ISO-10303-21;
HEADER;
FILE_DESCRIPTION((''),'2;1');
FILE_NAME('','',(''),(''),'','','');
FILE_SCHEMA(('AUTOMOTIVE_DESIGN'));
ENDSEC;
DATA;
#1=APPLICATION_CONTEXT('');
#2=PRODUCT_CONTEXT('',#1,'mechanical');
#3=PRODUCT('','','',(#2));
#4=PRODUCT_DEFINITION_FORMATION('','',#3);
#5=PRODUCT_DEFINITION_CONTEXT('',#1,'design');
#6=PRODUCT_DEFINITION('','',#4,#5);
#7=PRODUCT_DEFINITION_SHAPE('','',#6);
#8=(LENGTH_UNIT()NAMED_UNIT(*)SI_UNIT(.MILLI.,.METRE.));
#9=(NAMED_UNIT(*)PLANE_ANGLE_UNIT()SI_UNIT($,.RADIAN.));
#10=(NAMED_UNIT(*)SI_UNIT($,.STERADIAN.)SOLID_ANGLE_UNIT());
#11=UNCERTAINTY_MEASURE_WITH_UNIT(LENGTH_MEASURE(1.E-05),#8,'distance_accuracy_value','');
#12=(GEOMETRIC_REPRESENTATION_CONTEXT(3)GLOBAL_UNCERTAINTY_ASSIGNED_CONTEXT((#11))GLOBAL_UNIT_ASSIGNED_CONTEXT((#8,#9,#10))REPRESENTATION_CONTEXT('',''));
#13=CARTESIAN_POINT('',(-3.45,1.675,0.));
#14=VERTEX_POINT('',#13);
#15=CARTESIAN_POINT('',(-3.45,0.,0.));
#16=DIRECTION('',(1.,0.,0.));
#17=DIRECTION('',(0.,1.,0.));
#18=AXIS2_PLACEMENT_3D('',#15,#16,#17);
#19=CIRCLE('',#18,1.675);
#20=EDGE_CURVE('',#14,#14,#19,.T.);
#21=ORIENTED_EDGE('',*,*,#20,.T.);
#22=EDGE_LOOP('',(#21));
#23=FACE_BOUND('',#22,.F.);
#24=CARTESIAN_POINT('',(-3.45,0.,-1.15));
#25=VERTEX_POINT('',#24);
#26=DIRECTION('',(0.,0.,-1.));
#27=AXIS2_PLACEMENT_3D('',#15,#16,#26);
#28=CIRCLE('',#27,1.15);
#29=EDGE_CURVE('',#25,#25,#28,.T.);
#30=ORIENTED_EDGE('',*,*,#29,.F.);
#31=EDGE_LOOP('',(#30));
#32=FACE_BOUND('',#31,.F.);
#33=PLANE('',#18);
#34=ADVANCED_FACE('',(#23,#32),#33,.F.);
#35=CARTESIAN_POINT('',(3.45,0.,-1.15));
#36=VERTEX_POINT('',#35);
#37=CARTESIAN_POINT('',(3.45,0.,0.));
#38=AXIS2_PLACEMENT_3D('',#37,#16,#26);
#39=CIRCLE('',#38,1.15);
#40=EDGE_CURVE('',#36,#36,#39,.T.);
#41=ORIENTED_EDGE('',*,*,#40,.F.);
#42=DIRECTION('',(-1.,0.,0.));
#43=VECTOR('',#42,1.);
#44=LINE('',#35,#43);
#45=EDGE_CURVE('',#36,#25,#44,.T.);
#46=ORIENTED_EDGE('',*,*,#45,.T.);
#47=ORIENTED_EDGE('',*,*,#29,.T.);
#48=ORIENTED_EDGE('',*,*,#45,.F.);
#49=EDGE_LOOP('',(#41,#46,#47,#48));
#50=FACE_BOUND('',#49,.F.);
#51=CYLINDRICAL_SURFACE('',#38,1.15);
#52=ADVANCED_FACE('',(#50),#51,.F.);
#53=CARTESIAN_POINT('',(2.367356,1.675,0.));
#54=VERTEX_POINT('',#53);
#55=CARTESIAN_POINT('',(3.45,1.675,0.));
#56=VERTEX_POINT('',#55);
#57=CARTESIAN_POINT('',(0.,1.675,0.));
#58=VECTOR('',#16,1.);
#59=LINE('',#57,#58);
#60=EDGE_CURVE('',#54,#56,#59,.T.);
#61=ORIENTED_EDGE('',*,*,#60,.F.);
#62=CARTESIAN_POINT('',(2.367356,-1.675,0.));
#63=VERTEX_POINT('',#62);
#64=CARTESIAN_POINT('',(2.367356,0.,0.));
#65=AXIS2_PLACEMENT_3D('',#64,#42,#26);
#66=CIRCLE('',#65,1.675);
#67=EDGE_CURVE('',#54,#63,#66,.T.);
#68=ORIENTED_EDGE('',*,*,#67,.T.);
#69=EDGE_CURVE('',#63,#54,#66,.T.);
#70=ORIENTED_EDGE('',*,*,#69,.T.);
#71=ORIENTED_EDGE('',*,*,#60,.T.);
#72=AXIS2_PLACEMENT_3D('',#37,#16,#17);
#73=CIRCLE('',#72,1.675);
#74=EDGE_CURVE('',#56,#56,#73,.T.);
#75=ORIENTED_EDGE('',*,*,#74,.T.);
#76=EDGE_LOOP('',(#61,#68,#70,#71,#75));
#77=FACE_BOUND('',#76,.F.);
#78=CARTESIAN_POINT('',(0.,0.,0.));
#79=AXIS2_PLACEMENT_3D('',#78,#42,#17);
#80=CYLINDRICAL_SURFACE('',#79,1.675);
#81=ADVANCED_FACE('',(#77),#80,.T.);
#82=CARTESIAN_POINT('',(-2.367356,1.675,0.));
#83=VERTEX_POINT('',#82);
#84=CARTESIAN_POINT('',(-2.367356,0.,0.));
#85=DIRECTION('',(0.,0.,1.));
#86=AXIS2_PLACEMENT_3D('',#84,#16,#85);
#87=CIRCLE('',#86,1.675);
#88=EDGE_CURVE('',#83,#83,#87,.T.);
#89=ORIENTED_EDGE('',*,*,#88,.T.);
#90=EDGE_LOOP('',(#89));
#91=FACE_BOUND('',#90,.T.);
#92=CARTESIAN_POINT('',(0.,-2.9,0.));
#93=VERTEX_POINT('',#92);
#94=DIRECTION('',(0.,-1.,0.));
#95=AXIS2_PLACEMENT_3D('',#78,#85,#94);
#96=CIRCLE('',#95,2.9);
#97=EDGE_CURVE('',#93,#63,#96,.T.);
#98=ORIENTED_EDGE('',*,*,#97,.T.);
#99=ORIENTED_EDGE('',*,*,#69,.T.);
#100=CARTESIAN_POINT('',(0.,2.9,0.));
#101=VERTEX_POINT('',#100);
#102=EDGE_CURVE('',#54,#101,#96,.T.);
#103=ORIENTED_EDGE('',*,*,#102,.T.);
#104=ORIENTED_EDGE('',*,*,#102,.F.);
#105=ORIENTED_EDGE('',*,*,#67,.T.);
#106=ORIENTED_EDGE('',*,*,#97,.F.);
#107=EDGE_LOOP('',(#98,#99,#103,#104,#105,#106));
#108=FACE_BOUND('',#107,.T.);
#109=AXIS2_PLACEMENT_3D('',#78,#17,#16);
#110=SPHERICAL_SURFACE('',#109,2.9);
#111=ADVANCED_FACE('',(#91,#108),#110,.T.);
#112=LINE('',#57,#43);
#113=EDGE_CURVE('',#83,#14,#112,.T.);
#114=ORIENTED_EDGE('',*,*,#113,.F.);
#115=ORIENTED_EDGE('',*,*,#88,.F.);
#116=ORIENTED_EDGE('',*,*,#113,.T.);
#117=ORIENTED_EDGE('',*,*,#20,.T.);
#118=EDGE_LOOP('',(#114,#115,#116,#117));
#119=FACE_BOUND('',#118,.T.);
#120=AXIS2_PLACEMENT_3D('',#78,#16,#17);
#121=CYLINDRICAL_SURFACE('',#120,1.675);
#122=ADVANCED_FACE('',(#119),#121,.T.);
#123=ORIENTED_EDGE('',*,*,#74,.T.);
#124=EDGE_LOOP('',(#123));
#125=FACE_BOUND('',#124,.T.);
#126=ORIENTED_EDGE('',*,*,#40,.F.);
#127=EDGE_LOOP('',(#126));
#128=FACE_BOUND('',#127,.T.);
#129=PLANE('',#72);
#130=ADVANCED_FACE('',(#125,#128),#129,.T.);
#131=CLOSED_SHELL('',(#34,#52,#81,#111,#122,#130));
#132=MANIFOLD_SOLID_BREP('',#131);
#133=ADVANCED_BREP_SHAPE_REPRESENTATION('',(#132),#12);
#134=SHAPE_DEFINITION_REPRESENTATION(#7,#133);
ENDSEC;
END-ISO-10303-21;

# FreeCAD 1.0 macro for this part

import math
import FreeCAD as App
import Part
import Sketcher
from FreeCAD import Vector
Q = App.Units.Quantity

doc = App.newDocument("Part")
body = doc.addObject("PartDesign::Body", "Body")

# Sketch on XY plane
sketch1 = body.newObject("Sketcher::SketchObject", "Sketch")
sketch1.AttachmentSupport = (doc.getObject("XY_Plane"), [""])
sketch1.MapMode = "FlatFace"
sketch1.addGeometry(Part.LineSegment(Vector(0, 2.9, 0), Vector(0, -2.9, 0)), False)
sketch1.addGeometry(Part.ArcOfCircle(Part.Circle(Vector(0, 0, 0), Vector(0, 0, 1), 2.9), math.radians(-90), math.radians(90)), False)
sketch1.addConstraint(Sketcher.Constraint("Coincident", 0, 1, 1, 2))
sketch1.addConstraint(Sketcher.Constraint("Coincident", 1, 1, 0, 2))
sketch1.addConstraint(Sketcher.Constraint("Vertical", 0))
sketch1.addConstraint(Sketcher.Constraint("Coincident", 1, 3, -1, 1))
sketch1.addConstraint(Sketcher.Constraint("PointOnObject", 0, 1, -2))
sketch1.addConstraint(Sketcher.Constraint("Radius", 1, Q("2.9 mm")))
revolution = body.newObject("PartDesign::Revolution", "Revolution")
revolution.Profile = sketch1
revolution.ReferenceAxis = (sketch1, ["V_Axis"])
revolution.Angle = 360

# Sketch on YZ plane
sketch2 = body.newObject("Sketcher::SketchObject", "Sketch001")
sketch2.AttachmentSupport = (doc.getObject("YZ_Plane"), [""])
sketch2.MapMode = "FlatFace"
sketch2.addGeometry(Part.Circle(Vector(0, 0, 0), Vector(0, 0, 1), 1.675), False)
sketch2.addConstraint(Sketcher.Constraint("Coincident", 0, 3, -1, 1))
sketch2.addConstraint(Sketcher.Constraint("Diameter", 0, Q("3.35 mm")))
pad1 = body.newObject("PartDesign::Pad", "Pad")
pad1.Profile = sketch2
pad1.Length = 6.9
pad1.Midplane = True

# Sketch on YZ plane
sketch3 = body.newObject("Sketcher::SketchObject", "Sketch002")
sketch3.AttachmentSupport = (doc.getObject("YZ_Plane"), [""])
sketch3.MapMode = "FlatFace"
sketch3.AttachmentOffset = App.Placement(Vector(0, 0, 3.45), App.Rotation())
sketch3.addGeometry(Part.Circle(Vector(0, 0, 0), Vector(0, 0, 1), 1.15), False)
sketch3.addConstraint(Sketcher.Constraint("Coincident", 0, 3, -1, 1))
sketch3.addConstraint(Sketcher.Constraint("Diameter", 0, Q("2.3 mm")))
pocket1 = body.newObject("PartDesign::Pocket", "Pocket")
pocket1.Profile = sketch3
pocket1.Length = 6.9

doc.recompute()
